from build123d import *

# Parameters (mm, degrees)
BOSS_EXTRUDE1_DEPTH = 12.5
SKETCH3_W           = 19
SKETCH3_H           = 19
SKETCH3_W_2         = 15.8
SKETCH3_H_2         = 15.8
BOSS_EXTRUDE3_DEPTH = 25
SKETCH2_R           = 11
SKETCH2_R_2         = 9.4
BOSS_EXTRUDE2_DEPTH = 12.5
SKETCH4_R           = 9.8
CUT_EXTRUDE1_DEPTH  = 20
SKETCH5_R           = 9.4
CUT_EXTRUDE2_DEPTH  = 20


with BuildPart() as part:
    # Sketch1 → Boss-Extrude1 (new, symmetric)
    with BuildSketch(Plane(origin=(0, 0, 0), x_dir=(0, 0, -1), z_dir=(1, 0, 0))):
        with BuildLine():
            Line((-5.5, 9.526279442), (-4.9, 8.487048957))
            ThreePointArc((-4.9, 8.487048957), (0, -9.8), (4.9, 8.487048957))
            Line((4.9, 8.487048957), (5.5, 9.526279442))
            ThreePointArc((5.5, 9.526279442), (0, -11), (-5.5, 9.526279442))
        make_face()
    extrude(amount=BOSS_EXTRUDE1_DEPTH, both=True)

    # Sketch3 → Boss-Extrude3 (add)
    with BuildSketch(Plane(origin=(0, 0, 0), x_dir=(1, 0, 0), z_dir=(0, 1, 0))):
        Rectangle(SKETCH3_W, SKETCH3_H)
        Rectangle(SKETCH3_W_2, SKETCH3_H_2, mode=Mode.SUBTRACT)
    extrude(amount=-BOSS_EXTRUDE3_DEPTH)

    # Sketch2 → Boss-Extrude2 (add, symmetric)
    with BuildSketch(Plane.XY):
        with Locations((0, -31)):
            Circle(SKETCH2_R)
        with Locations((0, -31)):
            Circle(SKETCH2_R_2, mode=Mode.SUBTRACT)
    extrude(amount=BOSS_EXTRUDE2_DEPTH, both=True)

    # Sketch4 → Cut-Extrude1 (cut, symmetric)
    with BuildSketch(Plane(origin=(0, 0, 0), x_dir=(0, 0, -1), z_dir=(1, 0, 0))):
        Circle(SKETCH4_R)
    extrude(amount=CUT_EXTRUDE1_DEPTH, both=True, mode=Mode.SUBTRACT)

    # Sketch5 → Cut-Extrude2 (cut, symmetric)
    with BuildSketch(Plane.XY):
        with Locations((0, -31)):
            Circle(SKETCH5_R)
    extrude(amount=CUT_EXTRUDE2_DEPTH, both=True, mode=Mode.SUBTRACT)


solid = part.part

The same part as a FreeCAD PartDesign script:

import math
import FreeCAD as App
import Part
import Sketcher
from FreeCAD import Vector
Q = App.Units.Quantity


def add_polygon(sketch, points):
    """Adds a closed chain of lines whose ends are joined by coincident constraints."""
    first, n = sketch.GeometryCount, len(points)
    for a, b in zip(points, points[1:] + points[:1]):
        sketch.addGeometry(Part.LineSegment(App.Vector(*a, 0), App.Vector(*b, 0)), False)
    for i in range(n):
        sketch.addConstraint(Sketcher.Constraint("Coincident", first + i, 2, first + (i + 1) % n, 1))

doc = App.newDocument("Part")
body = doc.addObject("PartDesign::Body", "Body")

sketch1 = body.newObject("Sketcher::SketchObject", "Sketch")
sketch1.AttachmentSupport = (doc.getObject("YZ_Plane"), [""])
sketch1.MapMode = "FlatFace"
sketch1.addGeometry([
    Part.LineSegment(Vector(8.5, 4.9, 0), Vector(9.5, 5.5, 0)),
    Part.ArcOfCircle(Part.Circle(Vector(0, 0, 0), Vector(0, 0, 1), 11), math.radians(30), math.radians(330)),
    Part.LineSegment(Vector(9.5, -5.5, 0), Vector(8.5, -4.9, 0)),
    Part.ArcOfCircle(Part.Circle(Vector(0, 0, 0), Vector(0, 0, 1), 9.8), math.radians(30), math.radians(330)),
], False)
sketch1.addConstraint([
    Sketcher.Constraint("Coincident", 0, 2, 1, 1),
    Sketcher.Constraint("Coincident", 1, 2, 2, 1),
    Sketcher.Constraint("Coincident", 2, 2, 3, 2),
    Sketcher.Constraint("Coincident", 3, 1, 0, 1),
    Sketcher.Constraint("Coincident", 1, 3, -1, 1),
    Sketcher.Constraint("Coincident", 3, 3, -1, 1),
    Sketcher.Constraint("Vertical", 0, 2, 1, 2),
    Sketcher.Constraint("Vertical", 2, 2, 3, 1),
    Sketcher.Constraint("Radius", 1, 11.0),
    Sketcher.Constraint("Radius", 3, 9.8),
    Sketcher.Constraint("Angle", 0, Q("30 deg")),
    Sketcher.Constraint("DistanceY", 1, 2, 0, 2, 11.0),
])
pad1 = body.newObject("PartDesign::Pad", "Pad")
pad1.Profile = sketch1
pad1.Length = 25
pad1.Midplane = True

sketch2 = body.newObject("Sketcher::SketchObject", "Sketch001")
sketch2.AttachmentSupport = (doc.getObject("XZ_Plane"), [""])
sketch2.MapMode = "FlatFace"
add_polygon(sketch2, [(-10, -10), (-10, 10), (10, 10), (10, -10)])
add_polygon(sketch2, [(8, 8), (-8, 8), (-8, -8), (8, -8)])
sketch2.addConstraint([
    Sketcher.Constraint("Vertical", 0),
    Sketcher.Constraint("Horizontal", 1),
    Sketcher.Constraint("Vertical", 2),
    Sketcher.Constraint("Horizontal", 3),
    Sketcher.Constraint("Horizontal", 4),
    Sketcher.Constraint("Vertical", 5),
    Sketcher.Constraint("Horizontal", 6),
    Sketcher.Constraint("Vertical", 7),
    Sketcher.Constraint("Symmetric", 0, 2, 2, 2, -1, 1),
    Sketcher.Constraint("Symmetric", 4, 2, 6, 2, -1, 1),
    Sketcher.Constraint("Equal", 3, 0),
    Sketcher.Constraint("Equal", 6, 5),
    Sketcher.Constraint("DistanceX", 1, 1, 1, 2, 19.0),
    Sketcher.Constraint("DistanceX", 4, 2, 4, 1, 15.8),
])
pad2 = body.newObject("PartDesign::Pad", "Pad001")
pad2.Profile = sketch2
pad2.Length = 25

sketch3 = body.newObject("Sketcher::SketchObject", "Sketch002")
sketch3.AttachmentSupport = (doc.getObject("XY_Plane"), [""])
sketch3.MapMode = "FlatFace"
sketch3.addGeometry([
    Part.Circle(Vector(0, -31, 0), Vector(0, 0, 1), 11),
    Part.Circle(Vector(0, -31, 0), Vector(0, 0, 1), 9),
], False)
sketch3.addConstraint([
    Sketcher.Constraint("Coincident", 1, 3, 0, 3),
    Sketcher.Constraint("PointOnObject", 0, 3, -2),
    Sketcher.Constraint("Diameter", 0, 22.0),
    Sketcher.Constraint("Diameter", 1, 18.8),
    Sketcher.Constraint("DistanceY", 0, 3, -1, 1, 31.0),
])
pad3 = body.newObject("PartDesign::Pad", "Pad002")
pad3.Profile = sketch3
pad3.Length = 25
pad3.Midplane = True

sketch4 = body.newObject("Sketcher::SketchObject", "Sketch003")
sketch4.AttachmentSupport = (doc.getObject("YZ_Plane"), [""])
sketch4.MapMode = "FlatFace"
sketch4.addGeometry(Part.Circle(Vector(0, 0, 0), Vector(0, 0, 1), 10), False)
sketch4.addConstraint([
    Sketcher.Constraint("Coincident", 0, 3, -1, 1),
    Sketcher.Constraint("Diameter", 0, 19.6),
])
pocket1 = body.newObject("PartDesign::Pocket", "Pocket")
pocket1.Profile = sketch4
pocket1.Length = 40
pocket1.Midplane = True

sketch5 = body.newObject("Sketcher::SketchObject", "Sketch004")
sketch5.AttachmentSupport = (doc.getObject("XY_Plane"), [""])
sketch5.MapMode = "FlatFace"
sketch5.addGeometry(Part.Circle(Vector(0, -31, 0), Vector(0, 0, 1), 9), False)
sketch5.addConstraint([
    Sketcher.Constraint("PointOnObject", 0, 3, -2),
    Sketcher.Constraint("Diameter", 0, 18.8),
    Sketcher.Constraint("DistanceY", 0, 3, -1, 1, 31.0),
])
pocket2 = body.newObject("PartDesign::Pocket", "Pocket001")
pocket2.Profile = sketch5
pocket2.Length = 40
pocket2.Midplane = True

doc.recompute()
